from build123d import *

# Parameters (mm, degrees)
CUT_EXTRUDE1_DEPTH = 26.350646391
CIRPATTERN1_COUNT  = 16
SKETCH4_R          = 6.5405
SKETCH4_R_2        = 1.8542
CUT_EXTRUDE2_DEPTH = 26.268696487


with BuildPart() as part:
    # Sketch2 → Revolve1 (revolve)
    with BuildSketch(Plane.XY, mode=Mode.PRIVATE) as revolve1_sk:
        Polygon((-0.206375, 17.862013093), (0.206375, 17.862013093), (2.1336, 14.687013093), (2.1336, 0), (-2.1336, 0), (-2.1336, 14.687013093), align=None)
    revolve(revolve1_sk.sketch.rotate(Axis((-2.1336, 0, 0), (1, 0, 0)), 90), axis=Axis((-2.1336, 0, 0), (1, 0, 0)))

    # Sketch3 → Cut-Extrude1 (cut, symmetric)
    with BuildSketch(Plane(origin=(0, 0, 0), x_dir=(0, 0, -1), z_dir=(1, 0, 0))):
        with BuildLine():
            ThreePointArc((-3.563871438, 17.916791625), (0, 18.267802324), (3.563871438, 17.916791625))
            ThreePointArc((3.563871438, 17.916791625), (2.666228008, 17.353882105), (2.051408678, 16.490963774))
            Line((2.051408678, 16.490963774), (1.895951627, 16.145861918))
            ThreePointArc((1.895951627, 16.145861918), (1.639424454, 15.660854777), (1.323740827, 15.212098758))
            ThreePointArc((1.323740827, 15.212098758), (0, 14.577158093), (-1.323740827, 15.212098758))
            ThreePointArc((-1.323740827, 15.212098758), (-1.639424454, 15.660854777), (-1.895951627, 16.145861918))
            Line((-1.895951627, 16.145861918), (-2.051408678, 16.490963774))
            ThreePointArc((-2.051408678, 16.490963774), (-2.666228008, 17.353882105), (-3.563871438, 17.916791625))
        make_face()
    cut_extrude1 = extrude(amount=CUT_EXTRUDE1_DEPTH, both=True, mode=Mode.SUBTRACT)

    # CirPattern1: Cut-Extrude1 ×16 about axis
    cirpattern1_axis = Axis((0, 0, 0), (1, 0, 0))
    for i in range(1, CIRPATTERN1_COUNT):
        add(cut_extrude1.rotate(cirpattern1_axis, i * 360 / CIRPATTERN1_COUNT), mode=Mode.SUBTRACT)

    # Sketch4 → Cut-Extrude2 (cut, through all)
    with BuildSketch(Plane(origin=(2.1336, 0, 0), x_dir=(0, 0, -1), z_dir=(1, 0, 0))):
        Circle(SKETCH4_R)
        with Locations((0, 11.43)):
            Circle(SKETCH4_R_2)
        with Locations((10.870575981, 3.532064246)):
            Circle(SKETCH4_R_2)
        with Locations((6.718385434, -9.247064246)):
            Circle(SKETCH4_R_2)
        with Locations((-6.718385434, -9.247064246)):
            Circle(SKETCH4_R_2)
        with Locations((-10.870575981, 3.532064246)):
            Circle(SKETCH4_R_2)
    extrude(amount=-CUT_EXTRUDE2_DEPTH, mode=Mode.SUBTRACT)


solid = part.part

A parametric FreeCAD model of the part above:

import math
import FreeCAD as App
import Part
import Sketcher
Q = App.Units.Quantity


def add_polygon(sketch, points):
    """Adds a closed chain of lines whose ends are joined by coincident constraints."""
    first, n = sketch.GeometryCount, len(points)
    for a, b in zip(points, points[1:] + points[:1]):
        sketch.addGeometry(Part.LineSegment(App.Vector(*a, 0), App.Vector(*b, 0)), False)
    for i in range(n):
        sketch.addConstraint(Sketcher.Constraint("Coincident", first + i, 2, first + (i + 1) % n, 1))

doc = App.newDocument("Part")
body = doc.addObject("PartDesign::Body", "Body")

# Sketch on XY plane
sketch1 = body.newObject("Sketcher::SketchObject", "Sketch")
sketch1.AttachmentSupport = (doc.getObject("XY_Plane"), [""])
sketch1.MapMode = "FlatFace"
add_polygon(sketch1, [(0.21, 17.86), (-0.21, 17.86), (-2.13, 14.69), (-2.13, 0), (2.13, 0), (2.13, 14.69)])  # lines 0-5
sketch1.addConstraint([
    Sketcher.Constraint("Horizontal", 0),
    Sketcher.Constraint("Vertical", 2),
    Sketcher.Constraint("Horizontal", 3),
    Sketcher.Constraint("Vertical", 4),
    Sketcher.Constraint("Symmetric", 2, 2, 3, 2, -1, 1),
    Sketcher.Constraint("Horizontal", 1, 2, 4, 2),
    Sketcher.Constraint("Equal", 1, 5),
    Sketcher.Constraint("DistanceX", 3, 1, 3, 2, Q("0.168 in")),
    Sketcher.Constraint("DistanceY", 1, 2, 0, 2, Q("0.125 in")),
    Sketcher.Constraint("DistanceX", 0, 2, 0, 1, 0.41275),
    Sketcher.Constraint("DistanceY", 2, 2, 2, 1, 14.687013),
])
revolution = body.newObject("PartDesign::Revolution", "Revolution")
revolution.Profile = sketch1
revolution.ReferenceAxis = (sketch1, ["H_Axis"])
revolution.Angle = 360

# Sketch on YZ plane
sketch2 = body.newObject("Sketcher::SketchObject", "Sketch001")
sketch2.AttachmentSupport = (doc.getObject("YZ_Plane"), [""])
sketch2.MapMode = "FlatFace"
sketch2.addGeometry([
    Part.ArcOfCircle(Part.Circle(App.Vector(0, 0, 0), App.Vector(0, 0, 1), 18.27), math.radians(-11), math.radians(11)),  # 0
    Part.ArcOfCircle(Part.Circle(App.Vector(15.37, 4.53, 0), App.Vector(0, 0, 1), 2.72), math.radians(-66), math.radians(-21)),  # 1
    Part.LineSegment(App.Vector(16.49, 2.05, 0), App.Vector(16.15, 1.9, 0)),  # 2
    Part.ArcOfCircle(Part.Circle(App.Vector(17.93, -2.06, 0), App.Vector(0, 0, 1), 4.34), math.radians(114.25), math.radians(128.75)),  # 3
    Part.ArcOfCircle(Part.Circle(App.Vector(16.27, 0, 0), App.Vector(0, 0, 1), 1.7), math.radians(129), math.radians(231)),  # 4
    Part.ArcOfCircle(Part.Circle(App.Vector(17.93, 2.06, 0), App.Vector(0, 0, 1), 4.34), math.radians(-128.75), math.radians(-114.25)),  # 5
    Part.LineSegment(App.Vector(16.15, -1.9, 0), App.Vector(16.49, -2.05, 0)),  # 6
    Part.ArcOfCircle(Part.Circle(App.Vector(15.37, -4.53, 0), App.Vector(0, 0, 1), 2.72), math.radians(21), math.radians(66)),  # 7
], False)
sketch2.addConstraint([
    Sketcher.Constraint("Coincident", 0, 2, 1, 2),
    Sketcher.Constraint("Tangent", 1, 1, 2, 1),
    Sketcher.Constraint("Tangent", 2, 2, 3, 1),
    Sketcher.Constraint("Tangent", 3, 2, 4, 1),
    Sketcher.Constraint("Tangent", 4, 2, 5, 1),
    Sketcher.Constraint("Tangent", 5, 2, 6, 1),
    Sketcher.Constraint("Tangent", 6, 2, 7, 2),
    Sketcher.Constraint("Coincident", 7, 1, 0, 1),
    Sketcher.Constraint("Coincident", 0, 3, -1, 1),
    Sketcher.Constraint("Equal", 3, 5),
    Sketcher.Constraint("Equal", 1, 7),
    Sketcher.Constraint("Symmetric", 3, 3, 5, 3, -1),
    Sketcher.Constraint("Symmetric", 1, 3, 7, 3, -1),
    Sketcher.Constraint("Angle", 2, Q("-155.75 deg")),
    Sketcher.Constraint("Radius", 1, 2.722822),
    Sketcher.Constraint("Radius", 0, 18.267802),
    Sketcher.Constraint("Radius", 3, 4.338955),
    Sketcher.Constraint("Radius", 4, 1.697355),
    Sketcher.Constraint("Distance", 2, 0.3785),
    Sketcher.Constraint("DistanceX", -1, 1, 3, 2, 15.212099),
    Sketcher.Constraint("DistanceY", 3, 2, 5, 3, 0.736402),
])
pocket1 = body.newObject("PartDesign::Pocket", "Pocket")
pocket1.Profile = sketch2
pocket1.Length = 52.701293
pocket1.Midplane = True
doc.recompute()

polarpattern = body.newObject("PartDesign::PolarPattern", "PolarPattern")
polarpattern.Originals = [pocket1]
polarpattern.Axis = (doc.getObject("X_Axis"), [""])
polarpattern.Angle = 360
polarpattern.Occurrences = 16
body.Tip = polarpattern

# Sketch on YZ plane
sketch3 = body.newObject("Sketcher::SketchObject", "Sketch002")
sketch3.AttachmentSupport = (doc.getObject("YZ_Plane"), [""])
sketch3.MapMode = "FlatFace"
sketch3.AttachmentOffset = App.Placement(App.Vector(0, 0, 0.084 * 25.4), App.Rotation())
sketch3.addGeometry([
    Part.Circle(App.Vector(0, 0, 0), App.Vector(0, 0, 1), 6.5),  # 0
    Part.Circle(App.Vector(11.4, 0, 0), App.Vector(0, 0, 1), 1.9),  # 1
    Part.Circle(App.Vector(3.5, -10.9, 0), App.Vector(0, 0, 1), 1.9),  # 2
    Part.Circle(App.Vector(-9.2, -6.7, 0), App.Vector(0, 0, 1), 1.9),  # 3
    Part.Circle(App.Vector(-9.2, 6.7, 0), App.Vector(0, 0, 1), 1.9),  # 4
    Part.Circle(App.Vector(3.5, 10.9, 0), App.Vector(0, 0, 1), 1.9),  # 5
], False)
sketch3.addConstraint([
    Sketcher.Constraint("Coincident", 0, 3, -1, 1),
    Sketcher.Constraint("Equal", 1, 2),
    Sketcher.Constraint("Equal", 2, 3),
    Sketcher.Constraint("Equal", 3, 4),
    Sketcher.Constraint("Equal", 4, 5),
    Sketcher.Constraint("Symmetric", 3, 3, 4, 3, -1),
    Sketcher.Constraint("Symmetric", 2, 3, 5, 3, -1),
    Sketcher.Constraint("PointOnObject", 1, 3, -1),
    Sketcher.Constraint("Diameter", 0, Q("0.515 in")),
    Sketcher.Constraint("Diameter", 1, Q("0.146 in")),
    Sketcher.Constraint("DistanceX", -1, 1, 1, 3, Q("0.45 in")),
    Sketcher.Constraint("DistanceX", 3, 3, 2, 3, 12.779128),
    Sketcher.Constraint("DistanceY", 2, 3, 3, 3, 4.152191),
    Sketcher.Constraint("DistanceY", 3, 3, 4, 3, 13.436771),
    Sketcher.Constraint("DistanceX", -1, 1, 2, 3, 3.532064),
])
pocket2 = body.newObject("PartDesign::Pocket", "Pocket001")
pocket2.Profile = sketch3
pocket2.Type = "ThroughAll"

doc.recompute()
